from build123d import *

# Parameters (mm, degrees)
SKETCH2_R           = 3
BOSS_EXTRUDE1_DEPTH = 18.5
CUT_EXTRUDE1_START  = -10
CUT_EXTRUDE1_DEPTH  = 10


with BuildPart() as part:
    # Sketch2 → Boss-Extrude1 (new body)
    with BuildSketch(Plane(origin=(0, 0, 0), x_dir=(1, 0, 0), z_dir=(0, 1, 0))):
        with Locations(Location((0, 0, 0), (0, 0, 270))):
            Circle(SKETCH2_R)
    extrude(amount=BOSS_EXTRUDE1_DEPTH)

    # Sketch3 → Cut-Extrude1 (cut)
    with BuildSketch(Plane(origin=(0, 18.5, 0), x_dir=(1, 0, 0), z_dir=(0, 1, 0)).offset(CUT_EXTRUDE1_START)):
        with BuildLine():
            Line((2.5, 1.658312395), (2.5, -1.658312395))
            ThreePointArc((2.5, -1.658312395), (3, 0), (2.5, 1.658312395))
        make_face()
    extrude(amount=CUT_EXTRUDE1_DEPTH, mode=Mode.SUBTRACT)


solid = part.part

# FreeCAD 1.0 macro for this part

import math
import FreeCAD as App
import Part
import Sketcher
Q = App.Units.Quantity

doc = App.newDocument("Part")
params = doc.addObject("Spreadsheet::Sheet", "Params")
for row, (alias, value) in enumerate([
    ("sketch1_diameter", "6 mm"),
    ("pad1_length", "18.5 mm"),
    ("sketch2_radius", "3 mm"),
    ("pocket1_length", "10 mm"),
], start=1):
    params.set(f"A{row}", alias)
    params.set(f"B{row}", "=" + value)
    params.setAlias(f"B{row}", alias)

body = doc.addObject("PartDesign::Body", "Body")

sketch1 = body.newObject("Sketcher::SketchObject", "Sketch")
sketch1.AttachmentSupport = (doc.getObject("XZ_Plane"), [""])
sketch1.MapMode = "FlatFace"
sketch1.addGeometry(Part.Circle(App.Vector(0, 0, 0), App.Vector(0, 0, 1), 3), False)
sketch1.addConstraint([
    Sketcher.Constraint("Coincident", 0, 3, -1, 1),
    Sketcher.Constraint("Diameter", 0, Q("6 mm")),
])
sketch1.setExpression("Constraints[1]", "Params.sketch1_diameter")
pad1 = body.newObject("PartDesign::Pad", "Pad")
pad1.Profile = sketch1
pad1.setExpression("Length", "Params.pad1_length")
pad1.Reversed = True

sketch2 = body.newObject("Sketcher::SketchObject", "Sketch001")
sketch2.AttachmentSupport = (doc.getObject("XZ_Plane"), [""])
sketch2.MapMode = "FlatFace"
sketch2.AttachmentOffset = App.Placement(App.Vector(0, 0, -8.5), App.Rotation())
sketch2.addGeometry([
    Part.LineSegment(App.Vector(2.5, -1.658312, 0), App.Vector(2.5, 1.658312, 0)),
    Part.ArcOfCircle(Part.Circle(App.Vector(0, 0, 0), App.Vector(0, 0, 1), 3), math.radians(-33.55731), math.radians(33.55731)),
], False)
sketch2.addConstraint([
    Sketcher.Constraint("Coincident", 0, 1, 1, 1),
    Sketcher.Constraint("Coincident", 1, 2, 0, 2),
    Sketcher.Constraint("Vertical", 0),
    Sketcher.Constraint("Coincident", 1, 3, -1, 1),
    Sketcher.Constraint("Radius", 1, Q("3 mm")),
    Sketcher.Constraint("DistanceX", -1, 1, 0, 1, Q("2.5 mm")),
])
sketch2.setExpression("Constraints[4]", "Params.sketch2_radius")
pocket1 = body.newObject("PartDesign::Pocket", "Pocket")
pocket1.Profile = sketch2
pocket1.setExpression("Length", "Params.pocket1_length")

doc.recompute()
